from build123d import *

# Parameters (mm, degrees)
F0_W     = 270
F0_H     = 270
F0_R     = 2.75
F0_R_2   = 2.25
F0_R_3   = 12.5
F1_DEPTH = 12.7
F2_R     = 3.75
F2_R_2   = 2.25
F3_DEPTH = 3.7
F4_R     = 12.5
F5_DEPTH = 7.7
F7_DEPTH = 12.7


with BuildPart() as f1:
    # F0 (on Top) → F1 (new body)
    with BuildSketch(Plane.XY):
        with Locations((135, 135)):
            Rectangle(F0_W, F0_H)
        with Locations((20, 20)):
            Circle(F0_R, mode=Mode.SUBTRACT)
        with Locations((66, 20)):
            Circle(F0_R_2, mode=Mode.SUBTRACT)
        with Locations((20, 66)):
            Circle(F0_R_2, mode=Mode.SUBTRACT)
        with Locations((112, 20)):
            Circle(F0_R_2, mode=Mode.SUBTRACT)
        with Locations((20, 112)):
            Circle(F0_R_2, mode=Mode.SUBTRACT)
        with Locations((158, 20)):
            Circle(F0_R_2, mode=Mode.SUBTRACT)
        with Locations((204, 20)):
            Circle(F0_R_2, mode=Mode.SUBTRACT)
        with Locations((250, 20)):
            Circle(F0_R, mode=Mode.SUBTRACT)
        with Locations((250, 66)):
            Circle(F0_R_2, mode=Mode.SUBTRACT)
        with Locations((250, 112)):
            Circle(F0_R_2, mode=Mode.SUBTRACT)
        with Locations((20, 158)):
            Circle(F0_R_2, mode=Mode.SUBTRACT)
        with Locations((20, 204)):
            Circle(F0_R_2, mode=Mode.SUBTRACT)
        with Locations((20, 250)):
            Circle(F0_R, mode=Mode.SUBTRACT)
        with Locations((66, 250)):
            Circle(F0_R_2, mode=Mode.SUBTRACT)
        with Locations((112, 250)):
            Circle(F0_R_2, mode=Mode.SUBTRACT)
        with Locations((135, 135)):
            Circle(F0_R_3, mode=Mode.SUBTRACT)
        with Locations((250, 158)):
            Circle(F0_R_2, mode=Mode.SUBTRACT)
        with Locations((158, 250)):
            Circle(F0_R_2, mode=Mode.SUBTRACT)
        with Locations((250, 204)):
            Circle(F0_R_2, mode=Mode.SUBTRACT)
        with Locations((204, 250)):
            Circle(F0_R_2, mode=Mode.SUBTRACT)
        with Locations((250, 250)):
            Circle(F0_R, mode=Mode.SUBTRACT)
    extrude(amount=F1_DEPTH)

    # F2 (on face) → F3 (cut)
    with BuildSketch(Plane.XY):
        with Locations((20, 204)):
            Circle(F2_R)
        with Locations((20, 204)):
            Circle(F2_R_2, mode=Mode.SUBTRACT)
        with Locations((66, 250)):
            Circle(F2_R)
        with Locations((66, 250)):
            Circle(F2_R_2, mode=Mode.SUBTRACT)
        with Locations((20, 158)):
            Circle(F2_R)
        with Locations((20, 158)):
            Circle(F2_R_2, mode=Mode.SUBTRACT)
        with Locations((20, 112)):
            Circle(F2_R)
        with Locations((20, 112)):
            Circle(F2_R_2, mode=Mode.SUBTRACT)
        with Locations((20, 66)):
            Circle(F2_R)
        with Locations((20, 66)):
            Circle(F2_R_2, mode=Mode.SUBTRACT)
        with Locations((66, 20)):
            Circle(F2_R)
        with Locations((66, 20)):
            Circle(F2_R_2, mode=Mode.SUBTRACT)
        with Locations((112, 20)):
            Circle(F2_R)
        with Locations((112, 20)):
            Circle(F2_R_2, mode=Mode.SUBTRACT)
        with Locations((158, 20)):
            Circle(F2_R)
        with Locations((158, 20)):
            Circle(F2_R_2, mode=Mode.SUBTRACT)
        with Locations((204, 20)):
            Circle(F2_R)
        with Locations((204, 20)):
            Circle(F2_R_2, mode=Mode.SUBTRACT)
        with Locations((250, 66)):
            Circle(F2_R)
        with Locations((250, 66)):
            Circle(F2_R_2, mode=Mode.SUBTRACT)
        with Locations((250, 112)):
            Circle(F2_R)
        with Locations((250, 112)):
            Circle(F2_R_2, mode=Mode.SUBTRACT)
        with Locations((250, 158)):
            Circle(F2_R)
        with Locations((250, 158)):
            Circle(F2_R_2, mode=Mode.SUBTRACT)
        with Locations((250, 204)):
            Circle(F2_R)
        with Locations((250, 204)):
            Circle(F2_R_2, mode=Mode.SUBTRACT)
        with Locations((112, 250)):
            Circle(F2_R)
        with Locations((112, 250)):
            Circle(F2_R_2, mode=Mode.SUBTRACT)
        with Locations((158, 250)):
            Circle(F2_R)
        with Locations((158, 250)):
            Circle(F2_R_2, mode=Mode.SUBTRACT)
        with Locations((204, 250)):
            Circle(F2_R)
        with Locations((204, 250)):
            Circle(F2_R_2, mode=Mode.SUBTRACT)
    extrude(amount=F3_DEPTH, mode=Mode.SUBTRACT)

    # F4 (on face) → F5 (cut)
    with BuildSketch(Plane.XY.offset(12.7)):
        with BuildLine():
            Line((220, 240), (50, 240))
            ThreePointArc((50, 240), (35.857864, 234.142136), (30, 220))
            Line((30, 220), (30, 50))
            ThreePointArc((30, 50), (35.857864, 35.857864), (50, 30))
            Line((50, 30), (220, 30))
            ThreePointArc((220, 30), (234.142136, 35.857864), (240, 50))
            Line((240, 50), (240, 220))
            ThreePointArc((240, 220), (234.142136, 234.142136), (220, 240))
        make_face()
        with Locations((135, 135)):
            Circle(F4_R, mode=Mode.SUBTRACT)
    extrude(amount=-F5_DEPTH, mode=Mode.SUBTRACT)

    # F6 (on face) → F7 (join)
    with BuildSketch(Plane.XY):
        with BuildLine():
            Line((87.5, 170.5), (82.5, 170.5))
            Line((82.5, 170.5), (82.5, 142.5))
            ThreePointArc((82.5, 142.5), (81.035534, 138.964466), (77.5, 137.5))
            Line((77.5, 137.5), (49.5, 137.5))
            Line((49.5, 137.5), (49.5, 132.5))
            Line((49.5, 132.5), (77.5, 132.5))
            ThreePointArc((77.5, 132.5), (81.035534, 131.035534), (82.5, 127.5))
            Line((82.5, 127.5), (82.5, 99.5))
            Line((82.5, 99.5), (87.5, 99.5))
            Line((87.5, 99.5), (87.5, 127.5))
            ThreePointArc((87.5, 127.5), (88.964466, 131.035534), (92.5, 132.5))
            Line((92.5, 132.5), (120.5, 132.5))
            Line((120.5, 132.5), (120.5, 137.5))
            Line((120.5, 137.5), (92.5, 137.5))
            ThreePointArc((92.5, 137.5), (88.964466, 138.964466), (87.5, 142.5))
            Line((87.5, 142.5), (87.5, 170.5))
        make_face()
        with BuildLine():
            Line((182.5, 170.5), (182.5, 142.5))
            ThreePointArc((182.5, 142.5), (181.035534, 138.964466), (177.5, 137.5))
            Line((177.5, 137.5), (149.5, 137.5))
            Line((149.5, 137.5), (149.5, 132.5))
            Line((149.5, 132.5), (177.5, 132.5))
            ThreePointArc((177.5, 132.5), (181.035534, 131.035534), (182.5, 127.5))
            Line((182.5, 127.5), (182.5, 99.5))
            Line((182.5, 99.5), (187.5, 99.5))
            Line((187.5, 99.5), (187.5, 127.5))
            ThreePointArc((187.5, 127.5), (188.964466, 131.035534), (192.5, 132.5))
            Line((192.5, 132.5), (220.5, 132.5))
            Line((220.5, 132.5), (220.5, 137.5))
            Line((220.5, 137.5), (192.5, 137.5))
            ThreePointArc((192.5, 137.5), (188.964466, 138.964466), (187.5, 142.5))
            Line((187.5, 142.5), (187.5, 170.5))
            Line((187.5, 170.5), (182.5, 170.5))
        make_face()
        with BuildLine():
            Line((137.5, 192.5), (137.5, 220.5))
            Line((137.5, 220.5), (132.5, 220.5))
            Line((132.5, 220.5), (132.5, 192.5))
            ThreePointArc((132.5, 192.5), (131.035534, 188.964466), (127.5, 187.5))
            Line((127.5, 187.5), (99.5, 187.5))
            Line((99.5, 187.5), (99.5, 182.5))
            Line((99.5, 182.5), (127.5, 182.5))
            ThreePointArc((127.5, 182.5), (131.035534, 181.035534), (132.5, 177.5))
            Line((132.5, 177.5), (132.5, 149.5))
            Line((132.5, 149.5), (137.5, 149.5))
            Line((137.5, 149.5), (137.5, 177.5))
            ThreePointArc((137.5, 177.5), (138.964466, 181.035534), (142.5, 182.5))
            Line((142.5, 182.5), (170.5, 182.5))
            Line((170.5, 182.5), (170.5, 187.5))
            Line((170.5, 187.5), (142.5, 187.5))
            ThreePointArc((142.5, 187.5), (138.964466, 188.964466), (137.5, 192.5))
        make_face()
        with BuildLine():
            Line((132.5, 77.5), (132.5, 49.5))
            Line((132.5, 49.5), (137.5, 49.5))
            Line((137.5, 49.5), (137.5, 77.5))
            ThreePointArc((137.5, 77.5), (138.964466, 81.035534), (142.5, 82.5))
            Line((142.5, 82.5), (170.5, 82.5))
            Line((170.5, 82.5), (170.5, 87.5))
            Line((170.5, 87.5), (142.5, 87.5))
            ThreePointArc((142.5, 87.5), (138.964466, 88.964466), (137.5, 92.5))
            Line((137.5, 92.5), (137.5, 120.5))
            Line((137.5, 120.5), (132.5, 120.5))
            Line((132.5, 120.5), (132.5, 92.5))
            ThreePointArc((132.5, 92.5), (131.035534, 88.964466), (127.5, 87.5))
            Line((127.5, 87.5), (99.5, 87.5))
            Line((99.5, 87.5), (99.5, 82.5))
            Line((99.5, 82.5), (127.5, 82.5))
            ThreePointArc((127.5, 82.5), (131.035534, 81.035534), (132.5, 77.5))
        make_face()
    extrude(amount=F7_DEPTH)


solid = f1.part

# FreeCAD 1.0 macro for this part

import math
import FreeCAD as App
import Part
import Sketcher
Q = App.Units.Quantity

doc = App.newDocument("Part")
body = doc.addObject("PartDesign::Body", "Body")

sketch1 = doc.addObject("Sketcher::SketchObject", "Sketch")
body.addObject(sketch1)
sketch1.AttachmentSupport = (doc.XY_Plane, [""])
sketch1.MapMode = "FlatFace"
sketch1.addGeometry(Part.LineSegment(App.Vector(0, 270, 0), App.Vector(0, 0, 0)), False)
sketch1.addGeometry(Part.LineSegment(App.Vector(0, 0, 0), App.Vector(270, 0, 0)), False)
sketch1.addGeometry(Part.LineSegment(App.Vector(270, 0, 0), App.Vector(270, 270, 0)), False)
sketch1.addGeometry(Part.LineSegment(App.Vector(270, 270, 0), App.Vector(0, 270, 0)), False)
sketch1.addGeometry(Part.Circle(App.Vector(20, 20, 0), App.Vector(0, 0, 1), 2.75), False)
sketch1.addGeometry(Part.Circle(App.Vector(66, 20, 0), App.Vector(0, 0, 1), 2.25), False)
sketch1.addGeometry(Part.Circle(App.Vector(20, 66, 0), App.Vector(0, 0, 1), 2.25), False)
sketch1.addGeometry(Part.Circle(App.Vector(112, 20, 0), App.Vector(0, 0, 1), 2.25), False)
sketch1.addGeometry(Part.Circle(App.Vector(20, 112, 0), App.Vector(0, 0, 1), 2.25), False)
sketch1.addGeometry(Part.Circle(App.Vector(158, 20, 0), App.Vector(0, 0, 1), 2.25), False)
sketch1.addGeometry(Part.Circle(App.Vector(204, 20, 0), App.Vector(0, 0, 1), 2.25), False)
sketch1.addGeometry(Part.Circle(App.Vector(250, 20, 0), App.Vector(0, 0, 1), 2.75), False)
sketch1.addGeometry(Part.Circle(App.Vector(250, 66, 0), App.Vector(0, 0, 1), 2.25), False)
sketch1.addGeometry(Part.Circle(App.Vector(250, 112, 0), App.Vector(0, 0, 1), 2.25), False)
sketch1.addGeometry(Part.Circle(App.Vector(20, 158, 0), App.Vector(0, 0, 1), 2.25), False)
sketch1.addGeometry(Part.Circle(App.Vector(20, 204, 0), App.Vector(0, 0, 1), 2.25), False)
sketch1.addGeometry(Part.Circle(App.Vector(20, 250, 0), App.Vector(0, 0, 1), 2.75), False)
sketch1.addGeometry(Part.Circle(App.Vector(66, 250, 0), App.Vector(0, 0, 1), 2.25), False)
sketch1.addGeometry(Part.Circle(App.Vector(112, 250, 0), App.Vector(0, 0, 1), 2.25), False)
sketch1.addGeometry(Part.Circle(App.Vector(135, 135, 0), App.Vector(0, 0, 1), 12.5), False)
sketch1.addGeometry(Part.Circle(App.Vector(250, 158, 0), App.Vector(0, 0, 1), 2.25), False)
sketch1.addGeometry(Part.Circle(App.Vector(158, 250, 0), App.Vector(0, 0, 1), 2.25), False)
sketch1.addGeometry(Part.Circle(App.Vector(250, 204, 0), App.Vector(0, 0, 1), 2.25), False)
sketch1.addGeometry(Part.Circle(App.Vector(204, 250, 0), App.Vector(0, 0, 1), 2.25), False)
sketch1.addGeometry(Part.Circle(App.Vector(250, 250, 0), App.Vector(0, 0, 1), 2.75), False)
sketch1.addConstraint(Sketcher.Constraint("Coincident", 0, 2, 1, 1))
sketch1.addConstraint(Sketcher.Constraint("Coincident", 1, 2, 2, 1))
sketch1.addConstraint(Sketcher.Constraint("Coincident", 2, 2, 3, 1))
sketch1.addConstraint(Sketcher.Constraint("Coincident", 3, 2, 0, 1))
sketch1.addConstraint(Sketcher.Constraint("Vertical", 0))
sketch1.addConstraint(Sketcher.Constraint("Horizontal", 1))
sketch1.addConstraint(Sketcher.Constraint("Vertical", 2))
sketch1.addConstraint(Sketcher.Constraint("Horizontal", 3))
sketch1.addConstraint(Sketcher.Constraint("Coincident", 0, 2, -1, 1))
sketch1.addConstraint(Sketcher.Constraint("Equal", 5, 6))
sketch1.addConstraint(Sketcher.Constraint("Equal", 6, 7))
sketch1.addConstraint(Sketcher.Constraint("Equal", 7, 8))
sketch1.addConstraint(Sketcher.Constraint("Equal", 8, 9))
sketch1.addConstraint(Sketcher.Constraint("Equal", 9, 10))
sketch1.addConstraint(Sketcher.Constraint("Equal", 4, 11))
sketch1.addConstraint(Sketcher.Constraint("Equal", 10, 12))
sketch1.addConstraint(Sketcher.Constraint("Equal", 12, 13))
sketch1.addConstraint(Sketcher.Constraint("Equal", 13, 14))
sketch1.addConstraint(Sketcher.Constraint("Equal", 14, 15))
sketch1.addConstraint(Sketcher.Constraint("Equal", 11, 16))
sketch1.addConstraint(Sketcher.Constraint("Equal", 15, 17))
sketch1.addConstraint(Sketcher.Constraint("Equal", 17, 18))
sketch1.addConstraint(Sketcher.Constraint("Equal", 18, 20))
sketch1.addConstraint(Sketcher.Constraint("Equal", 20, 21))
sketch1.addConstraint(Sketcher.Constraint("Equal", 21, 22))
sketch1.addConstraint(Sketcher.Constraint("Equal", 22, 23))
sketch1.addConstraint(Sketcher.Constraint("Equal", 16, 24))
sketch1.addConstraint(Sketcher.Constraint("Horizontal", 4, 3, 5, 3))
sketch1.addConstraint(Sketcher.Constraint("Horizontal", 5, 3, 7, 3))
sketch1.addConstraint(Sketcher.Constraint("Horizontal", 7, 3, 9, 3))
sketch1.addConstraint(Sketcher.Constraint("Horizontal", 9, 3, 10, 3))
sketch1.addConstraint(Sketcher.Constraint("Horizontal", 10, 3, 11, 3))
sketch1.addConstraint(Sketcher.Constraint("Horizontal", 6, 3, 12, 3))
sketch1.addConstraint(Sketcher.Constraint("Horizontal", 8, 3, 13, 3))
sketch1.addConstraint(Sketcher.Constraint("Horizontal", 16, 3, 17, 3))
sketch1.addConstraint(Sketcher.Constraint("Horizontal", 17, 3, 18, 3))
sketch1.addConstraint(Sketcher.Constraint("Horizontal", 14, 3, 20, 3))
sketch1.addConstraint(Sketcher.Constraint("Horizontal", 18, 3, 21, 3))
sketch1.addConstraint(Sketcher.Constraint("Horizontal", 15, 3, 22, 3))
sketch1.addConstraint(Sketcher.Constraint("Horizontal", 21, 3, 23, 3))
sketch1.addConstraint(Sketcher.Constraint("Horizontal", 23, 3, 24, 3))
sketch1.addConstraint(Sketcher.Constraint("Vertical", 4, 3, 6, 3))
sketch1.addConstraint(Sketcher.Constraint("Vertical", 6, 3, 8, 3))
sketch1.addConstraint(Sketcher.Constraint("Vertical", 11, 3, 12, 3))
sketch1.addConstraint(Sketcher.Constraint("Vertical", 12, 3, 13, 3))
sketch1.addConstraint(Sketcher.Constraint("Vertical", 8, 3, 14, 3))
sketch1.addConstraint(Sketcher.Constraint("Vertical", 14, 3, 15, 3))
sketch1.addConstraint(Sketcher.Constraint("Vertical", 15, 3, 16, 3))
sketch1.addConstraint(Sketcher.Constraint("Vertical", 5, 3, 17, 3))
sketch1.addConstraint(Sketcher.Constraint("Vertical", 7, 3, 18, 3))
sketch1.addConstraint(Sketcher.Constraint("Vertical", 13, 3, 20, 3))
sketch1.addConstraint(Sketcher.Constraint("Vertical", 9, 3, 21, 3))
sketch1.addConstraint(Sketcher.Constraint("Vertical", 20, 3, 22, 3))
sketch1.addConstraint(Sketcher.Constraint("Vertical", 10, 3, 23, 3))
sketch1.addConstraint(Sketcher.Constraint("Vertical", 22, 3, 24, 3))
sketch1.addConstraint(Sketcher.Constraint("Equal", 3, 0))
sketch1.addConstraint(Sketcher.Constraint("Diameter", 19, Q("25 mm")))
sketch1.addConstraint(Sketcher.Constraint("Diameter", 4, Q("5.5 mm")))
sketch1.addConstraint(Sketcher.Constraint("Diameter", 5, Q("4.5 mm")))
sketch1.addConstraint(Sketcher.Constraint("DistanceX", 1, 1, 1, 2, Q("270 mm")))
sketch1.addConstraint(Sketcher.Constraint("DistanceX", -1, 1, 4, 3, Q("20 mm")))
sketch1.addConstraint(Sketcher.Constraint("DistanceY", -1, 1, 4, 3, Q("20 mm")))
sketch1.addConstraint(Sketcher.Constraint("DistanceX", -1, 1, 5, 3, Q("66 mm")))
sketch1.addConstraint(Sketcher.Constraint("DistanceY", -1, 1, 6, 3, Q("66 mm")))
sketch1.addConstraint(Sketcher.Constraint("DistanceX", -1, 1, 7, 3, Q("112 mm")))
sketch1.addConstraint(Sketcher.Constraint("DistanceY", -1, 1, 8, 3, Q("112 mm")))
sketch1.addConstraint(Sketcher.Constraint("DistanceX", -1, 1, 9, 3, Q("158 mm")))
sketch1.addConstraint(Sketcher.Constraint("DistanceX", -1, 1, 10, 3, Q("204 mm")))
sketch1.addConstraint(Sketcher.Constraint("DistanceX", -1, 1, 11, 3, Q("250 mm")))
sketch1.addConstraint(Sketcher.Constraint("DistanceY", -1, 1, 14, 3, Q("158 mm")))
sketch1.addConstraint(Sketcher.Constraint("DistanceY", -1, 1, 15, 3, Q("204 mm")))
sketch1.addConstraint(Sketcher.Constraint("DistanceY", -1, 1, 16, 3, Q("250 mm")))
sketch1.addConstraint(Sketcher.Constraint("DistanceX", -1, 1, 19, 3, Q("135 mm")))
sketch1.addConstraint(Sketcher.Constraint("DistanceY", -1, 1, 19, 3, Q("135 mm")))
pad1 = doc.addObject("PartDesign::Pad", "Pad")
body.addObject(pad1)
pad1.Profile = sketch1
pad1.Length = 12.7

sketch2 = doc.addObject("Sketcher::SketchObject", "Sketch001")
body.addObject(sketch2)
sketch2.AttachmentSupport = (doc.XY_Plane, [""])
sketch2.MapMode = "FlatFace"
sketch2.addGeometry(Part.Circle(App.Vector(20, 204, 0), App.Vector(0, 0, 1), 3.75), False)
sketch2.addGeometry(Part.Circle(App.Vector(20, 204, 0), App.Vector(0, 0, 1), 2.25), False)
sketch2.addGeometry(Part.Circle(App.Vector(66, 250, 0), App.Vector(0, 0, 1), 3.75), False)
sketch2.addGeometry(Part.Circle(App.Vector(66, 250, 0), App.Vector(0, 0, 1), 2.25), False)
sketch2.addGeometry(Part.Circle(App.Vector(20, 158, 0), App.Vector(0, 0, 1), 3.75), False)
sketch2.addGeometry(Part.Circle(App.Vector(20, 158, 0), App.Vector(0, 0, 1), 2.25), False)
sketch2.addGeometry(Part.Circle(App.Vector(20, 112, 0), App.Vector(0, 0, 1), 3.75), False)
sketch2.addGeometry(Part.Circle(App.Vector(20, 112, 0), App.Vector(0, 0, 1), 2.25), False)
sketch2.addGeometry(Part.Circle(App.Vector(20, 66, 0), App.Vector(0, 0, 1), 3.75), False)
sketch2.addGeometry(Part.Circle(App.Vector(20, 66, 0), App.Vector(0, 0, 1), 2.25), False)
sketch2.addGeometry(Part.Circle(App.Vector(66, 20, 0), App.Vector(0, 0, 1), 3.75), False)
sketch2.addGeometry(Part.Circle(App.Vector(66, 20, 0), App.Vector(0, 0, 1), 2.25), False)
sketch2.addGeometry(Part.Circle(App.Vector(112, 20, 0), App.Vector(0, 0, 1), 3.75), False)
sketch2.addGeometry(Part.Circle(App.Vector(112, 20, 0), App.Vector(0, 0, 1), 2.25), False)
sketch2.addGeometry(Part.Circle(App.Vector(158, 20, 0), App.Vector(0, 0, 1), 3.75), False)
sketch2.addGeometry(Part.Circle(App.Vector(158, 20, 0), App.Vector(0, 0, 1), 2.25), False)
sketch2.addGeometry(Part.Circle(App.Vector(204, 20, 0), App.Vector(0, 0, 1), 3.75), False)
sketch2.addGeometry(Part.Circle(App.Vector(204, 20, 0), App.Vector(0, 0, 1), 2.25), False)
sketch2.addGeometry(Part.Circle(App.Vector(250, 66, 0), App.Vector(0, 0, 1), 3.75), False)
sketch2.addGeometry(Part.Circle(App.Vector(250, 66, 0), App.Vector(0, 0, 1), 2.25), False)
sketch2.addGeometry(Part.Circle(App.Vector(250, 112, 0), App.Vector(0, 0, 1), 3.75), False)
sketch2.addGeometry(Part.Circle(App.Vector(250, 112, 0), App.Vector(0, 0, 1), 2.25), False)
sketch2.addGeometry(Part.Circle(App.Vector(250, 158, 0), App.Vector(0, 0, 1), 3.75), False)
sketch2.addGeometry(Part.Circle(App.Vector(250, 158, 0), App.Vector(0, 0, 1), 2.25), False)
sketch2.addGeometry(Part.Circle(App.Vector(250, 204, 0), App.Vector(0, 0, 1), 3.75), False)
sketch2.addGeometry(Part.Circle(App.Vector(250, 204, 0), App.Vector(0, 0, 1), 2.25), False)
sketch2.addGeometry(Part.Circle(App.Vector(112, 250, 0), App.Vector(0, 0, 1), 3.75), False)
sketch2.addGeometry(Part.Circle(App.Vector(112, 250, 0), App.Vector(0, 0, 1), 2.25), False)
sketch2.addGeometry(Part.Circle(App.Vector(158, 250, 0), App.Vector(0, 0, 1), 3.75), False)
sketch2.addGeometry(Part.Circle(App.Vector(158, 250, 0), App.Vector(0, 0, 1), 2.25), False)
sketch2.addGeometry(Part.Circle(App.Vector(204, 250, 0), App.Vector(0, 0, 1), 3.75), False)
sketch2.addGeometry(Part.Circle(App.Vector(204, 250, 0), App.Vector(0, 0, 1), 2.25), False)
sketch2.addConstraint(Sketcher.Constraint("Coincident", 1, 3, 0, 3))
sketch2.addConstraint(Sketcher.Constraint("Coincident", 3, 3, 2, 3))
sketch2.addConstraint(Sketcher.Constraint("Coincident", 5, 3, 4, 3))
sketch2.addConstraint(Sketcher.Constraint("Coincident", 7, 3, 6, 3))
sketch2.addConstraint(Sketcher.Constraint("Coincident", 9, 3, 8, 3))
sketch2.addConstraint(Sketcher.Constraint("Coincident", 11, 3, 10, 3))
sketch2.addConstraint(Sketcher.Constraint("Coincident", 13, 3, 12, 3))
sketch2.addConstraint(Sketcher.Constraint("Coincident", 15, 3, 14, 3))
sketch2.addConstraint(Sketcher.Constraint("Coincident", 17, 3, 16, 3))
sketch2.addConstraint(Sketcher.Constraint("Coincident", 19, 3, 18, 3))
sketch2.addConstraint(Sketcher.Constraint("Coincident", 21, 3, 20, 3))
sketch2.addConstraint(Sketcher.Constraint("Coincident", 23, 3, 22, 3))
sketch2.addConstraint(Sketcher.Constraint("Coincident", 25, 3, 24, 3))
sketch2.addConstraint(Sketcher.Constraint("Coincident", 27, 3, 26, 3))
sketch2.addConstraint(Sketcher.Constraint("Coincident", 29, 3, 28, 3))
sketch2.addConstraint(Sketcher.Constraint("Coincident", 31, 3, 30, 3))
sketch2.addConstraint(Sketcher.Constraint("Equal", 0, 2))
sketch2.addConstraint(Sketcher.Constraint("Equal", 1, 3))
sketch2.addConstraint(Sketcher.Constraint("Equal", 2, 4))
sketch2.addConstraint(Sketcher.Constraint("Equal", 3, 5))
sketch2.addConstraint(Sketcher.Constraint("Equal", 4, 6))
sketch2.addConstraint(Sketcher.Constraint("Equal", 5, 7))
sketch2.addConstraint(Sketcher.Constraint("Equal", 6, 8))
sketch2.addConstraint(Sketcher.Constraint("Equal", 7, 9))
sketch2.addConstraint(Sketcher.Constraint("Equal", 8, 10))
sketch2.addConstraint(Sketcher.Constraint("Equal", 9, 11))
sketch2.addConstraint(Sketcher.Constraint("Equal", 10, 12))
sketch2.addConstraint(Sketcher.Constraint("Equal", 11, 13))
sketch2.addConstraint(Sketcher.Constraint("Equal", 12, 14))
sketch2.addConstraint(Sketcher.Constraint("Equal", 13, 15))
sketch2.addConstraint(Sketcher.Constraint("Equal", 14, 16))
sketch2.addConstraint(Sketcher.Constraint("Equal", 15, 17))
sketch2.addConstraint(Sketcher.Constraint("Equal", 16, 18))
sketch2.addConstraint(Sketcher.Constraint("Equal", 17, 19))
sketch2.addConstraint(Sketcher.Constraint("Equal", 18, 20))
sketch2.addConstraint(Sketcher.Constraint("Equal", 19, 21))
sketch2.addConstraint(Sketcher.Constraint("Equal", 20, 22))
sketch2.addConstraint(Sketcher.Constraint("Equal", 21, 23))
sketch2.addConstraint(Sketcher.Constraint("Equal", 22, 24))
sketch2.addConstraint(Sketcher.Constraint("Equal", 23, 25))
sketch2.addConstraint(Sketcher.Constraint("Equal", 24, 26))
sketch2.addConstraint(Sketcher.Constraint("Equal", 25, 27))
sketch2.addConstraint(Sketcher.Constraint("Equal", 26, 28))
sketch2.addConstraint(Sketcher.Constraint("Equal", 27, 29))
sketch2.addConstraint(Sketcher.Constraint("Equal", 28, 30))
sketch2.addConstraint(Sketcher.Constraint("Equal", 29, 31))
sketch2.addConstraint(Sketcher.Constraint("Horizontal", 11, 3, 12, 3))
sketch2.addConstraint(Sketcher.Constraint("Horizontal", 13, 3, 14, 3))
sketch2.addConstraint(Sketcher.Constraint("Horizontal", 15, 3, 16, 3))
sketch2.addConstraint(Sketcher.Constraint("Horizontal", 9, 3, 18, 3))
sketch2.addConstraint(Sketcher.Constraint("Horizontal", 7, 3, 20, 3))
sketch2.addConstraint(Sketcher.Constraint("Horizontal", 5, 3, 22, 3))
sketch2.addConstraint(Sketcher.Constraint("Horizontal", 1, 3, 24, 3))
sketch2.addConstraint(Sketcher.Constraint("Horizontal", 3, 3, 26, 3))
sketch2.addConstraint(Sketcher.Constraint("Horizontal", 27, 3, 28, 3))
sketch2.addConstraint(Sketcher.Constraint("Horizontal", 29, 3, 30, 3))
sketch2.addConstraint(Sketcher.Constraint("Vertical", 1, 3, 4, 3))
sketch2.addConstraint(Sketcher.Constraint("Vertical", 5, 3, 6, 3))
sketch2.addConstraint(Sketcher.Constraint("Vertical", 7, 3, 8, 3))
sketch2.addConstraint(Sketcher.Constraint("Vertical", 3, 3, 10, 3))
sketch2.addConstraint(Sketcher.Constraint("Vertical", 19, 3, 20, 3))
sketch2.addConstraint(Sketcher.Constraint("Vertical", 21, 3, 22, 3))
sketch2.addConstraint(Sketcher.Constraint("Vertical", 23, 3, 24, 3))
sketch2.addConstraint(Sketcher.Constraint("Vertical", 13, 3, 26, 3))
sketch2.addConstraint(Sketcher.Constraint("Vertical", 15, 3, 28, 3))
sketch2.addConstraint(Sketcher.Constraint("Vertical", 17, 3, 30, 3))
sketch2.addConstraint(Sketcher.Constraint("Diameter", 0, Q("7.5 mm")))
sketch2.addConstraint(Sketcher.Constraint("Diameter", 1, Q("4.5 mm")))
sketch2.addConstraint(Sketcher.Constraint("DistanceX", -1, 1, 0, 3, Q("20 mm")))
sketch2.addConstraint(Sketcher.Constraint("DistanceY", -1, 1, 0, 3, Q("204 mm")))
sketch2.addConstraint(Sketcher.Constraint("DistanceX", -1, 1, 2, 3, Q("66 mm")))
sketch2.addConstraint(Sketcher.Constraint("DistanceY", -1, 1, 2, 3, Q("250 mm")))
sketch2.addConstraint(Sketcher.Constraint("DistanceY", -1, 1, 4, 3, Q("158 mm")))
sketch2.addConstraint(Sketcher.Constraint("DistanceY", -1, 1, 6, 3, Q("112 mm")))
sketch2.addConstraint(Sketcher.Constraint("DistanceY", -1, 1, 8, 3, Q("66 mm")))
sketch2.addConstraint(Sketcher.Constraint("DistanceY", -1, 1, 10, 3, Q("20 mm")))
sketch2.addConstraint(Sketcher.Constraint("DistanceX", -1, 1, 12, 3, Q("112 mm")))
sketch2.addConstraint(Sketcher.Constraint("DistanceX", -1, 1, 14, 3, Q("158 mm")))
sketch2.addConstraint(Sketcher.Constraint("DistanceX", -1, 1, 16, 3, Q("204 mm")))
sketch2.addConstraint(Sketcher.Constraint("DistanceX", -1, 1, 18, 3, Q("250 mm")))
pocket1 = doc.addObject("PartDesign::Pocket", "Pocket")
body.addObject(pocket1)
pocket1.Profile = sketch2
pocket1.Length = 3.7
pocket1.Reversed = True

sketch3 = doc.addObject("Sketcher::SketchObject", "Sketch002")
body.addObject(sketch3)
sketch3.AttachmentSupport = (doc.XY_Plane, [""])
sketch3.MapMode = "FlatFace"
sketch3.AttachmentOffset = App.Placement(App.Vector(0, 0, 12.7), App.Rotation())
sketch3.addGeometry(Part.LineSegment(App.Vector(220, 240, 0), App.Vector(50, 240, 0)), False)
sketch3.addGeometry(Part.ArcOfCircle(Part.Circle(App.Vector(49.999999, 220.000001, 0), App.Vector(0, 0, 1), 19.999999), math.radians(89.999996), math.radians(180.000004)), False)
sketch3.addGeometry(Part.LineSegment(App.Vector(30, 220, 0), App.Vector(30, 50, 0)), False)
sketch3.addGeometry(Part.ArcOfCircle(Part.Circle(App.Vector(49.999999, 49.999999, 0), App.Vector(0, 0, 1), 19.999999), math.radians(179.999996), math.radians(270.000004)), False)
sketch3.addGeometry(Part.LineSegment(App.Vector(50, 30, 0), App.Vector(220, 30, 0)), False)
sketch3.addGeometry(Part.ArcOfCircle(Part.Circle(App.Vector(220.000001, 49.999999, 0), App.Vector(0, 0, 1), 19.999999), math.radians(-90.000004), math.radians(0.000004)), False)
sketch3.addGeometry(Part.LineSegment(App.Vector(240, 50, 0), App.Vector(240, 220, 0)), False)
sketch3.addGeometry(Part.ArcOfCircle(Part.Circle(App.Vector(220.000001, 220.000001, 0), App.Vector(0, 0, 1), 19.999999), math.radians(-0.000004), math.radians(90.000004)), False)
sketch3.addGeometry(Part.Circle(App.Vector(135, 135, 0), App.Vector(0, 0, 1), 12.5), False)
sketch3.addConstraint(Sketcher.Constraint("Tangent", 0, 2, 1, 1))
sketch3.addConstraint(Sketcher.Constraint("Tangent", 1, 2, 2, 1))
sketch3.addConstraint(Sketcher.Constraint("Tangent", 2, 2, 3, 1))
sketch3.addConstraint(Sketcher.Constraint("Tangent", 3, 2, 4, 1))
sketch3.addConstraint(Sketcher.Constraint("Tangent", 4, 2, 5, 1))
sketch3.addConstraint(Sketcher.Constraint("Tangent", 5, 2, 6, 1))
sketch3.addConstraint(Sketcher.Constraint("Tangent", 6, 2, 7, 1))
sketch3.addConstraint(Sketcher.Constraint("Tangent", 7, 2, 0, 1))
sketch3.addConstraint(Sketcher.Constraint("Horizontal", 0))
sketch3.addConstraint(Sketcher.Constraint("Vertical", 2))
sketch3.addConstraint(Sketcher.Constraint("Horizontal", 4))
sketch3.addConstraint(Sketcher.Constraint("Vertical", 6))
sketch3.addConstraint(Sketcher.Constraint("Equal", 1, 3))
sketch3.addConstraint(Sketcher.Constraint("Equal", 3, 5))
sketch3.addConstraint(Sketcher.Constraint("Equal", 5, 7))
sketch3.addConstraint(Sketcher.Constraint("Equal", 4, 2))
sketch3.addConstraint(Sketcher.Constraint("Diameter", 8, Q("25 mm")))
sketch3.addConstraint(Sketcher.Constraint("Radius", 1, Q("19.999999 mm")))
sketch3.addConstraint(Sketcher.Constraint("DistanceX", 0, 2, 0, 1, Q("170 mm")))
sketch3.addConstraint(Sketcher.Constraint("DistanceX", -1, 1, 1, 3, Q("49.999999 mm")))
sketch3.addConstraint(Sketcher.Constraint("DistanceY", -1, 1, 1, 3, Q("220.000001 mm")))
sketch3.addConstraint(Sketcher.Constraint("DistanceX", -1, 1, 8, 3, Q("135 mm")))
sketch3.addConstraint(Sketcher.Constraint("DistanceY", -1, 1, 8, 3, Q("135 mm")))
pocket2 = doc.addObject("PartDesign::Pocket", "Pocket001")
body.addObject(pocket2)
pocket2.Profile = sketch3
pocket2.Length = 7.7

sketch4 = doc.addObject("Sketcher::SketchObject", "Sketch003")
body.addObject(sketch4)
sketch4.AttachmentSupport = (doc.XY_Plane, [""])
sketch4.MapMode = "FlatFace"
sketch4.addGeometry(Part.LineSegment(App.Vector(87.5, 170.5, 0), App.Vector(82.5, 170.5, 0)), False)
sketch4.addGeometry(Part.LineSegment(App.Vector(82.5, 170.5, 0), App.Vector(82.5, 142.5, 0)), False)
sketch4.addGeometry(Part.ArcOfCircle(Part.Circle(App.Vector(77.5, 142.5, 0), App.Vector(0, 0, 1), 5), math.radians(-90.000004), math.radians(0.000004)), False)
sketch4.addGeometry(Part.LineSegment(App.Vector(77.5, 137.5, 0), App.Vector(49.5, 137.5, 0)), False)
sketch4.addGeometry(Part.LineSegment(App.Vector(49.5, 137.5, 0), App.Vector(49.5, 132.5, 0)), False)
sketch4.addGeometry(Part.LineSegment(App.Vector(49.5, 132.5, 0), App.Vector(77.5, 132.5, 0)), False)
sketch4.addGeometry(Part.ArcOfCircle(Part.Circle(App.Vector(77.5, 127.5, 0), App.Vector(0, 0, 1), 5), math.radians(-0.000004), math.radians(90.000004)), False)
sketch4.addGeometry(Part.LineSegment(App.Vector(82.5, 127.5, 0), App.Vector(82.5, 99.5, 0)), False)
sketch4.addGeometry(Part.LineSegment(App.Vector(82.5, 99.5, 0), App.Vector(87.5, 99.5, 0)), False)
sketch4.addGeometry(Part.LineSegment(App.Vector(87.5, 99.5, 0), App.Vector(87.5, 127.5, 0)), False)
sketch4.addGeometry(Part.ArcOfCircle(Part.Circle(App.Vector(92.5, 127.5, 0), App.Vector(0, 0, 1), 5), math.radians(89.999996), math.radians(180.000004)), False)
sketch4.addGeometry(Part.LineSegment(App.Vector(92.5, 132.5, 0), App.Vector(120.5, 132.5, 0)), False)
sketch4.addGeometry(Part.LineSegment(App.Vector(120.5, 132.5, 0), App.Vector(120.5, 137.5, 0)), False)
sketch4.addGeometry(Part.LineSegment(App.Vector(120.5, 137.5, 0), App.Vector(92.5, 137.5, 0)), False)
sketch4.addGeometry(Part.ArcOfCircle(Part.Circle(App.Vector(92.5, 142.5, 0), App.Vector(0, 0, 1), 5), math.radians(179.999996), math.radians(270.000004)), False)
sketch4.addGeometry(Part.LineSegment(App.Vector(87.5, 142.5, 0), App.Vector(87.5, 170.5, 0)), False)
sketch4.addGeometry(Part.LineSegment(App.Vector(182.5, 170.5, 0), App.Vector(182.5, 142.5, 0)), False)
sketch4.addGeometry(Part.ArcOfCircle(Part.Circle(App.Vector(177.5, 142.5, 0), App.Vector(0, 0, 1), 5), math.radians(-90.000004), math.radians(0.000004)), False)
sketch4.addGeometry(Part.LineSegment(App.Vector(177.5, 137.5, 0), App.Vector(149.5, 137.5, 0)), False)
sketch4.addGeometry(Part.LineSegment(App.Vector(149.5, 137.5, 0), App.Vector(149.5, 132.5, 0)), False)
sketch4.addGeometry(Part.LineSegment(App.Vector(149.5, 132.5, 0), App.Vector(177.5, 132.5, 0)), False)
sketch4.addGeometry(Part.ArcOfCircle(Part.Circle(App.Vector(177.5, 127.5, 0), App.Vector(0, 0, 1), 5), math.radians(-0.000004), math.radians(90.000004)), False)
sketch4.addGeometry(Part.LineSegment(App.Vector(182.5, 127.5, 0), App.Vector(182.5, 99.5, 0)), False)
sketch4.addGeometry(Part.LineSegment(App.Vector(182.5, 99.5, 0), App.Vector(187.5, 99.5, 0)), False)
sketch4.addGeometry(Part.LineSegment(App.Vector(187.5, 99.5, 0), App.Vector(187.5, 127.5, 0)), False)
sketch4.addGeometry(Part.ArcOfCircle(Part.Circle(App.Vector(192.5, 127.5, 0), App.Vector(0, 0, 1), 5), math.radians(89.999996), math.radians(180.000004)), False)
sketch4.addGeometry(Part.LineSegment(App.Vector(192.5, 132.5, 0), App.Vector(220.5, 132.5, 0)), False)
sketch4.addGeometry(Part.LineSegment(App.Vector(220.5, 132.5, 0), App.Vector(220.5, 137.5, 0)), False)
sketch4.addGeometry(Part.LineSegment(App.Vector(220.5, 137.5, 0), App.Vector(192.5, 137.5, 0)), False)
sketch4.addGeometry(Part.ArcOfCircle(Part.Circle(App.Vector(192.5, 142.5, 0), App.Vector(0, 0, 1), 5), math.radians(179.999996), math.radians(270.000004)), False)
sketch4.addGeometry(Part.LineSegment(App.Vector(187.5, 142.5, 0), App.Vector(187.5, 170.5, 0)), False)
sketch4.addGeometry(Part.LineSegment(App.Vector(187.5, 170.5, 0), App.Vector(182.5, 170.5, 0)), False)
sketch4.addGeometry(Part.LineSegment(App.Vector(137.5, 192.5, 0), App.Vector(137.5, 220.5, 0)), False)
sketch4.addGeometry(Part.LineSegment(App.Vector(137.5, 220.5, 0), App.Vector(132.5, 220.5, 0)), False)
sketch4.addGeometry(Part.LineSegment(App.Vector(132.5, 220.5, 0), App.Vector(132.5, 192.5, 0)), False)
sketch4.addGeometry(Part.ArcOfCircle(Part.Circle(App.Vector(127.5, 192.5, 0), App.Vector(0, 0, 1), 5), math.radians(-90.000004), math.radians(0.000004)), False)
sketch4.addGeometry(Part.LineSegment(App.Vector(127.5, 187.5, 0), App.Vector(99.5, 187.5, 0)), False)
sketch4.addGeometry(Part.LineSegment(App.Vector(99.5, 187.5, 0), App.Vector(99.5, 182.5, 0)), False)
sketch4.addGeometry(Part.LineSegment(App.Vector(99.5, 182.5, 0), App.Vector(127.5, 182.5, 0)), False)
sketch4.addGeometry(Part.ArcOfCircle(Part.Circle(App.Vector(127.5, 177.5, 0), App.Vector(0, 0, 1), 5), math.radians(-0.000004), math.radians(90.000004)), False)
sketch4.addGeometry(Part.LineSegment(App.Vector(132.5, 177.5, 0), App.Vector(132.5, 149.5, 0)), False)
sketch4.addGeometry(Part.LineSegment(App.Vector(132.5, 149.5, 0), App.Vector(137.5, 149.5, 0)), False)
sketch4.addGeometry(Part.LineSegment(App.Vector(137.5, 149.5, 0), App.Vector(137.5, 177.5, 0)), False)
sketch4.addGeometry(Part.ArcOfCircle(Part.Circle(App.Vector(142.5, 177.5, 0), App.Vector(0, 0, 1), 5), math.radians(89.999996), math.radians(180.000004)), False)
sketch4.addGeometry(Part.LineSegment(App.Vector(142.5, 182.5, 0), App.Vector(170.5, 182.5, 0)), False)
sketch4.addGeometry(Part.LineSegment(App.Vector(170.5, 182.5, 0), App.Vector(170.5, 187.5, 0)), False)
sketch4.addGeometry(Part.LineSegment(App.Vector(170.5, 187.5, 0), App.Vector(142.5, 187.5, 0)), False)
sketch4.addGeometry(Part.ArcOfCircle(Part.Circle(App.Vector(142.5, 192.5, 0), App.Vector(0, 0, 1), 5), math.radians(179.999996), math.radians(270.000004)), False)
sketch4.addGeometry(Part.LineSegment(App.Vector(132.5, 77.5, 0), App.Vector(132.5, 49.5, 0)), False)
sketch4.addGeometry(Part.LineSegment(App.Vector(132.5, 49.5, 0), App.Vector(137.5, 49.5, 0)), False)
sketch4.addGeometry(Part.LineSegment(App.Vector(137.5, 49.5, 0), App.Vector(137.5, 77.5, 0)), False)
sketch4.addGeometry(Part.ArcOfCircle(Part.Circle(App.Vector(142.5, 77.5, 0), App.Vector(0, 0, 1), 5), math.radians(89.999996), math.radians(180.000004)), False)
sketch4.addGeometry(Part.LineSegment(App.Vector(142.5, 82.5, 0), App.Vector(170.5, 82.5, 0)), False)
sketch4.addGeometry(Part.LineSegment(App.Vector(170.5, 82.5, 0), App.Vector(170.5, 87.5, 0)), False)
sketch4.addGeometry(Part.LineSegment(App.Vector(170.5, 87.5, 0), App.Vector(142.5, 87.5, 0)), False)
sketch4.addGeometry(Part.ArcOfCircle(Part.Circle(App.Vector(142.5, 92.5, 0), App.Vector(0, 0, 1), 5), math.radians(179.999996), math.radians(270.000004)), False)
sketch4.addGeometry(Part.LineSegment(App.Vector(137.5, 92.5, 0), App.Vector(137.5, 120.5, 0)), False)
sketch4.addGeometry(Part.LineSegment(App.Vector(137.5, 120.5, 0), App.Vector(132.5, 120.5, 0)), False)
sketch4.addGeometry(Part.LineSegment(App.Vector(132.5, 120.5, 0), App.Vector(132.5, 92.5, 0)), False)
sketch4.addGeometry(Part.ArcOfCircle(Part.Circle(App.Vector(127.5, 92.5, 0), App.Vector(0, 0, 1), 5), math.radians(-90.000004), math.radians(0.000004)), False)
sketch4.addGeometry(Part.LineSegment(App.Vector(127.5, 87.5, 0), App.Vector(99.5, 87.5, 0)), False)
sketch4.addGeometry(Part.LineSegment(App.Vector(99.5, 87.5, 0), App.Vector(99.5, 82.5, 0)), False)
sketch4.addGeometry(Part.LineSegment(App.Vector(99.5, 82.5, 0), App.Vector(127.5, 82.5, 0)), False)
sketch4.addGeometry(Part.ArcOfCircle(Part.Circle(App.Vector(127.5, 77.5, 0), App.Vector(0, 0, 1), 5), math.radians(-0.000004), math.radians(90.000004)), False)
sketch4.addConstraint(Sketcher.Constraint("Coincident", 0, 2, 1, 1))
sketch4.addConstraint(Sketcher.Constraint("Tangent", 1, 2, 2, 2))
sketch4.addConstraint(Sketcher.Constraint("Tangent", 2, 1, 3, 1))
sketch4.addConstraint(Sketcher.Constraint("Coincident", 3, 2, 4, 1))
sketch4.addConstraint(Sketcher.Constraint("Coincident", 4, 2, 5, 1))
sketch4.addConstraint(Sketcher.Constraint("Tangent", 5, 2, 6, 2))
sketch4.addConstraint(Sketcher.Constraint("Tangent", 6, 1, 7, 1))
sketch4.addConstraint(Sketcher.Constraint("Coincident", 7, 2, 8, 1))
sketch4.addConstraint(Sketcher.Constraint("Coincident", 8, 2, 9, 1))
sketch4.addConstraint(Sketcher.Constraint("Tangent", 9, 2, 10, 2))
sketch4.addConstraint(Sketcher.Constraint("Tangent", 10, 1, 11, 1))
sketch4.addConstraint(Sketcher.Constraint("Coincident", 11, 2, 12, 1))
sketch4.addConstraint(Sketcher.Constraint("Coincident", 12, 2, 13, 1))
sketch4.addConstraint(Sketcher.Constraint("Tangent", 13, 2, 14, 2))
sketch4.addConstraint(Sketcher.Constraint("Tangent", 14, 1, 15, 1))
sketch4.addConstraint(Sketcher.Constraint("Coincident", 15, 2, 0, 1))
sketch4.addConstraint(Sketcher.Constraint("Tangent", 16, 2, 17, 2))
sketch4.addConstraint(Sketcher.Constraint("Tangent", 17, 1, 18, 1))
sketch4.addConstraint(Sketcher.Constraint("Coincident", 18, 2, 19, 1))
sketch4.addConstraint(Sketcher.Constraint("Coincident", 19, 2, 20, 1))
sketch4.addConstraint(Sketcher.Constraint("Tangent", 20, 2, 21, 2))
sketch4.addConstraint(Sketcher.Constraint("Tangent", 21, 1, 22, 1))
sketch4.addConstraint(Sketcher.Constraint("Coincident", 22, 2, 23, 1))
sketch4.addConstraint(Sketcher.Constraint("Coincident", 23, 2, 24, 1))
sketch4.addConstraint(Sketcher.Constraint("Tangent", 24, 2, 25, 2))
sketch4.addConstraint(Sketcher.Constraint("Tangent", 25, 1, 26, 1))
sketch4.addConstraint(Sketcher.Constraint("Coincident", 26, 2, 27, 1))
sketch4.addConstraint(Sketcher.Constraint("Coincident", 27, 2, 28, 1))
sketch4.addConstraint(Sketcher.Constraint("Tangent", 28, 2, 29, 2))
sketch4.addConstraint(Sketcher.Constraint("Tangent", 29, 1, 30, 1))
sketch4.addConstraint(Sketcher.Constraint("Coincident", 30, 2, 31, 1))
sketch4.addConstraint(Sketcher.Constraint("Coincident", 31, 2, 16, 1))
sketch4.addConstraint(Sketcher.Constraint("Coincident", 32, 2, 33, 1))
sketch4.addConstraint(Sketcher.Constraint("Coincident", 33, 2, 34, 1))
sketch4.addConstraint(Sketcher.Constraint("Tangent", 34, 2, 35, 2))
sketch4.addConstraint(Sketcher.Constraint("Tangent", 35, 1, 36, 1))
sketch4.addConstraint(Sketcher.Constraint("Coincident", 36, 2, 37, 1))
sketch4.addConstraint(Sketcher.Constraint("Coincident", 37, 2, 38, 1))
sketch4.addConstraint(Sketcher.Constraint("Tangent", 38, 2, 39, 2))
sketch4.addConstraint(Sketcher.Constraint("Tangent", 39, 1, 40, 1))
sketch4.addConstraint(Sketcher.Constraint("Coincident", 40, 2, 41, 1))
sketch4.addConstraint(Sketcher.Constraint("Coincident", 41, 2, 42, 1))
sketch4.addConstraint(Sketcher.Constraint("Tangent", 42, 2, 43, 2))
sketch4.addConstraint(Sketcher.Constraint("Tangent", 43, 1, 44, 1))
sketch4.addConstraint(Sketcher.Constraint("Coincident", 44, 2, 45, 1))
sketch4.addConstraint(Sketcher.Constraint("Coincident", 45, 2, 46, 1))
sketch4.addConstraint(Sketcher.Constraint("Tangent", 46, 2, 47, 2))
sketch4.addConstraint(Sketcher.Constraint("Tangent", 47, 1, 32, 1))
sketch4.addConstraint(Sketcher.Constraint("Coincident", 48, 2, 49, 1))
sketch4.addConstraint(Sketcher.Constraint("Coincident", 49, 2, 50, 1))
sketch4.addConstraint(Sketcher.Constraint("Tangent", 50, 2, 51, 2))
sketch4.addConstraint(Sketcher.Constraint("Tangent", 51, 1, 52, 1))
sketch4.addConstraint(Sketcher.Constraint("Coincident", 52, 2, 53, 1))
sketch4.addConstraint(Sketcher.Constraint("Coincident", 53, 2, 54, 1))
sketch4.addConstraint(Sketcher.Constraint("Tangent", 54, 2, 55, 2))
sketch4.addConstraint(Sketcher.Constraint("Tangent", 55, 1, 56, 1))
sketch4.addConstraint(Sketcher.Constraint("Coincident", 56, 2, 57, 1))
sketch4.addConstraint(Sketcher.Constraint("Coincident", 57, 2, 58, 1))
sketch4.addConstraint(Sketcher.Constraint("Tangent", 58, 2, 59, 2))
sketch4.addConstraint(Sketcher.Constraint("Tangent", 59, 1, 60, 1))
sketch4.addConstraint(Sketcher.Constraint("Coincident", 60, 2, 61, 1))
sketch4.addConstraint(Sketcher.Constraint("Coincident", 61, 2, 62, 1))
sketch4.addConstraint(Sketcher.Constraint("Tangent", 62, 2, 63, 2))
sketch4.addConstraint(Sketcher.Constraint("Tangent", 63, 1, 48, 1))
sketch4.addConstraint(Sketcher.Constraint("Horizontal", 0))
sketch4.addConstraint(Sketcher.Constraint("Vertical", 1))
sketch4.addConstraint(Sketcher.Constraint("Horizontal", 3))
sketch4.addConstraint(Sketcher.Constraint("Vertical", 4))
sketch4.addConstraint(Sketcher.Constraint("Horizontal", 5))
sketch4.addConstraint(Sketcher.Constraint("Vertical", 7))
sketch4.addConstraint(Sketcher.Constraint("Horizontal", 8))
sketch4.addConstraint(Sketcher.Constraint("Vertical", 9))
sketch4.addConstraint(Sketcher.Constraint("Horizontal", 11))
sketch4.addConstraint(Sketcher.Constraint("Vertical", 12))
sketch4.addConstraint(Sketcher.Constraint("Horizontal", 13))
sketch4.addConstraint(Sketcher.Constraint("Vertical", 15))
sketch4.addConstraint(Sketcher.Constraint("Vertical", 16))
sketch4.addConstraint(Sketcher.Constraint("Horizontal", 18))
sketch4.addConstraint(Sketcher.Constraint("Vertical", 19))
sketch4.addConstraint(Sketcher.Constraint("Horizontal", 20))
sketch4.addConstraint(Sketcher.Constraint("Vertical", 22))
sketch4.addConstraint(Sketcher.Constraint("Horizontal", 23))
sketch4.addConstraint(Sketcher.Constraint("Vertical", 24))
sketch4.addConstraint(Sketcher.Constraint("Horizontal", 26))
sketch4.addConstraint(Sketcher.Constraint("Vertical", 27))
sketch4.addConstraint(Sketcher.Constraint("Horizontal", 28))
sketch4.addConstraint(Sketcher.Constraint("Vertical", 30))
sketch4.addConstraint(Sketcher.Constraint("Horizontal", 31))
sketch4.addConstraint(Sketcher.Constraint("Vertical", 32))
sketch4.addConstraint(Sketcher.Constraint("Horizontal", 33))
sketch4.addConstraint(Sketcher.Constraint("Vertical", 34))
sketch4.addConstraint(Sketcher.Constraint("Horizontal", 36))
sketch4.addConstraint(Sketcher.Constraint("Vertical", 37))
sketch4.addConstraint(Sketcher.Constraint("Horizontal", 38))
sketch4.addConstraint(Sketcher.Constraint("Vertical", 40))
sketch4.addConstraint(Sketcher.Constraint("Horizontal", 41))
sketch4.addConstraint(Sketcher.Constraint("Vertical", 42))
sketch4.addConstraint(Sketcher.Constraint("Horizontal", 44))
sketch4.addConstraint(Sketcher.Constraint("Vertical", 45))
sketch4.addConstraint(Sketcher.Constraint("Horizontal", 46))
sketch4.addConstraint(Sketcher.Constraint("Vertical", 48))
sketch4.addConstraint(Sketcher.Constraint("Horizontal", 49))
sketch4.addConstraint(Sketcher.Constraint("Vertical", 50))
sketch4.addConstraint(Sketcher.Constraint("Horizontal", 52))
sketch4.addConstraint(Sketcher.Constraint("Vertical", 53))
sketch4.addConstraint(Sketcher.Constraint("Horizontal", 54))
sketch4.addConstraint(Sketcher.Constraint("Vertical", 56))
sketch4.addConstraint(Sketcher.Constraint("Horizontal", 57))
sketch4.addConstraint(Sketcher.Constraint("Vertical", 58))
sketch4.addConstraint(Sketcher.Constraint("Horizontal", 60))
sketch4.addConstraint(Sketcher.Constraint("Vertical", 61))
sketch4.addConstraint(Sketcher.Constraint("Horizontal", 62))
sketch4.addConstraint(Sketcher.Constraint("Equal", 2, 6))
sketch4.addConstraint(Sketcher.Constraint("Equal", 6, 10))
sketch4.addConstraint(Sketcher.Constraint("Equal", 10, 14))
sketch4.addConstraint(Sketcher.Constraint("Equal", 14, 17))
sketch4.addConstraint(Sketcher.Constraint("Equal", 17, 21))
sketch4.addConstraint(Sketcher.Constraint("Equal", 21, 25))
sketch4.addConstraint(Sketcher.Constraint("Equal", 25, 29))
sketch4.addConstraint(Sketcher.Constraint("Equal", 29, 35))
sketch4.addConstraint(Sketcher.Constraint("Equal", 35, 39))
sketch4.addConstraint(Sketcher.Constraint("Equal", 39, 43))
sketch4.addConstraint(Sketcher.Constraint("Equal", 43, 47))
sketch4.addConstraint(Sketcher.Constraint("Equal", 47, 51))
sketch4.addConstraint(Sketcher.Constraint("Equal", 51, 55))
sketch4.addConstraint(Sketcher.Constraint("Equal", 55, 59))
sketch4.addConstraint(Sketcher.Constraint("Equal", 59, 63))
sketch4.addConstraint(Sketcher.Constraint("Horizontal", 6, 3, 10, 3))
sketch4.addConstraint(Sketcher.Constraint("Horizontal", 2, 3, 14, 3))
sketch4.addConstraint(Sketcher.Constraint("Horizontal", 14, 3, 17, 3))
sketch4.addConstraint(Sketcher.Constraint("Horizontal", 10, 3, 21, 3))
sketch4.addConstraint(Sketcher.Constraint("Horizontal", 21, 3, 25, 3))
sketch4.addConstraint(Sketcher.Constraint("Horizontal", 17, 3, 29, 3))
sketch4.addConstraint(Sketcher.Constraint("Horizontal", 39, 3, 43, 3))
sketch4.addConstraint(Sketcher.Constraint("Horizontal", 35, 3, 47, 3))
sketch4.addConstraint(Sketcher.Constraint("Horizontal", 55, 3, 59, 3))
sketch4.addConstraint(Sketcher.Constraint("Horizontal", 51, 3, 63, 3))
sketch4.addConstraint(Sketcher.Constraint("Horizontal", 8, 2, 22, 2))
sketch4.addConstraint(Sketcher.Constraint("Horizontal", 15, 2, 30, 2))
sketch4.addConstraint(Sketcher.Constraint("Vertical", 2, 3, 6, 3))
sketch4.addConstraint(Sketcher.Constraint("Vertical", 10, 3, 14, 3))
sketch4.addConstraint(Sketcher.Constraint("Vertical", 17, 3, 21, 3))
sketch4.addConstraint(Sketcher.Constraint("Vertical", 25, 3, 29, 3))
sketch4.addConstraint(Sketcher.Constraint("Vertical", 35, 3, 39, 3))
sketch4.addConstraint(Sketcher.Constraint("Vertical", 43, 3, 47, 3))
sketch4.addConstraint(Sketcher.Constraint("Vertical", 47, 3, 51, 3))
sketch4.addConstraint(Sketcher.Constraint("Vertical", 51, 3, 55, 3))
sketch4.addConstraint(Sketcher.Constraint("Vertical", 39, 3, 59, 3))
sketch4.addConstraint(Sketcher.Constraint("Vertical", 59, 3, 63, 3))
sketch4.addConstraint(Sketcher.Constraint("Vertical", 45, 2, 52, 2))
sketch4.addConstraint(Sketcher.Constraint("Vertical", 37, 2, 60, 2))
sketch4.addConstraint(Sketcher.Constraint("Equal", 5, 11))
sketch4.addConstraint(Sketcher.Constraint("Equal", 13, 18))
sketch4.addConstraint(Sketcher.Constraint("Equal", 8, 23))
sketch4.addConstraint(Sketcher.Constraint("Equal", 20, 26))
sketch4.addConstraint(Sketcher.Constraint("Equal", 31, 33))
sketch4.addConstraint(Sketcher.Constraint("Equal", 28, 36))
sketch4.addConstraint(Sketcher.Constraint("Equal", 38, 44))
sketch4.addConstraint(Sketcher.Constraint("Equal", 62, 1))
sketch4.addConstraint(Sketcher.Constraint("Equal", 57, 4))
sketch4.addConstraint(Sketcher.Constraint("Equal", 1, 7))
sketch4.addConstraint(Sketcher.Constraint("Equal", 30, 32))
sketch4.addConstraint(Sketcher.Constraint("Equal", 27, 37))
sketch4.addConstraint(Sketcher.Constraint("Equal", 34, 40))
sketch4.addConstraint(Sketcher.Constraint("Equal", 42, 48))
sketch4.addConstraint(Sketcher.Constraint("Equal", 45, 53))
sketch4.addConstraint(Sketcher.Constraint("Equal", 50, 56))
sketch4.addConstraint(Sketcher.Constraint("Radius", 2, Q("5 mm")))
sketch4.addConstraint(Sketcher.Constraint("DistanceX", 0, 2, 0, 1, Q("5 mm")))
sketch4.addConstraint(Sketcher.Constraint("DistanceX", 3, 2, 3, 1, Q("28 mm")))
sketch4.addConstraint(Sketcher.Constraint("DistanceX", -1, 1, 2, 3, Q("77.5 mm")))
sketch4.addConstraint(Sketcher.Constraint("DistanceY", -1, 1, 2, 3, Q("142.5 mm")))
sketch4.addConstraint(Sketcher.Constraint("DistanceX", -1, 1, 17, 3, Q("177.5 mm")))
sketch4.addConstraint(Sketcher.Constraint("DistanceX", -1, 1, 35, 3, Q("127.5 mm")))
sketch4.addConstraint(Sketcher.Constraint("DistanceY", -1, 1, 35, 3, Q("192.5 mm")))
sketch4.addConstraint(Sketcher.Constraint("DistanceY", -1, 1, 51, 3, Q("77.5 mm")))
pad2 = doc.addObject("PartDesign::Pad", "Pad001")
body.addObject(pad2)
pad2.Profile = sketch4
pad2.Length = 12.7

doc.recompute()
